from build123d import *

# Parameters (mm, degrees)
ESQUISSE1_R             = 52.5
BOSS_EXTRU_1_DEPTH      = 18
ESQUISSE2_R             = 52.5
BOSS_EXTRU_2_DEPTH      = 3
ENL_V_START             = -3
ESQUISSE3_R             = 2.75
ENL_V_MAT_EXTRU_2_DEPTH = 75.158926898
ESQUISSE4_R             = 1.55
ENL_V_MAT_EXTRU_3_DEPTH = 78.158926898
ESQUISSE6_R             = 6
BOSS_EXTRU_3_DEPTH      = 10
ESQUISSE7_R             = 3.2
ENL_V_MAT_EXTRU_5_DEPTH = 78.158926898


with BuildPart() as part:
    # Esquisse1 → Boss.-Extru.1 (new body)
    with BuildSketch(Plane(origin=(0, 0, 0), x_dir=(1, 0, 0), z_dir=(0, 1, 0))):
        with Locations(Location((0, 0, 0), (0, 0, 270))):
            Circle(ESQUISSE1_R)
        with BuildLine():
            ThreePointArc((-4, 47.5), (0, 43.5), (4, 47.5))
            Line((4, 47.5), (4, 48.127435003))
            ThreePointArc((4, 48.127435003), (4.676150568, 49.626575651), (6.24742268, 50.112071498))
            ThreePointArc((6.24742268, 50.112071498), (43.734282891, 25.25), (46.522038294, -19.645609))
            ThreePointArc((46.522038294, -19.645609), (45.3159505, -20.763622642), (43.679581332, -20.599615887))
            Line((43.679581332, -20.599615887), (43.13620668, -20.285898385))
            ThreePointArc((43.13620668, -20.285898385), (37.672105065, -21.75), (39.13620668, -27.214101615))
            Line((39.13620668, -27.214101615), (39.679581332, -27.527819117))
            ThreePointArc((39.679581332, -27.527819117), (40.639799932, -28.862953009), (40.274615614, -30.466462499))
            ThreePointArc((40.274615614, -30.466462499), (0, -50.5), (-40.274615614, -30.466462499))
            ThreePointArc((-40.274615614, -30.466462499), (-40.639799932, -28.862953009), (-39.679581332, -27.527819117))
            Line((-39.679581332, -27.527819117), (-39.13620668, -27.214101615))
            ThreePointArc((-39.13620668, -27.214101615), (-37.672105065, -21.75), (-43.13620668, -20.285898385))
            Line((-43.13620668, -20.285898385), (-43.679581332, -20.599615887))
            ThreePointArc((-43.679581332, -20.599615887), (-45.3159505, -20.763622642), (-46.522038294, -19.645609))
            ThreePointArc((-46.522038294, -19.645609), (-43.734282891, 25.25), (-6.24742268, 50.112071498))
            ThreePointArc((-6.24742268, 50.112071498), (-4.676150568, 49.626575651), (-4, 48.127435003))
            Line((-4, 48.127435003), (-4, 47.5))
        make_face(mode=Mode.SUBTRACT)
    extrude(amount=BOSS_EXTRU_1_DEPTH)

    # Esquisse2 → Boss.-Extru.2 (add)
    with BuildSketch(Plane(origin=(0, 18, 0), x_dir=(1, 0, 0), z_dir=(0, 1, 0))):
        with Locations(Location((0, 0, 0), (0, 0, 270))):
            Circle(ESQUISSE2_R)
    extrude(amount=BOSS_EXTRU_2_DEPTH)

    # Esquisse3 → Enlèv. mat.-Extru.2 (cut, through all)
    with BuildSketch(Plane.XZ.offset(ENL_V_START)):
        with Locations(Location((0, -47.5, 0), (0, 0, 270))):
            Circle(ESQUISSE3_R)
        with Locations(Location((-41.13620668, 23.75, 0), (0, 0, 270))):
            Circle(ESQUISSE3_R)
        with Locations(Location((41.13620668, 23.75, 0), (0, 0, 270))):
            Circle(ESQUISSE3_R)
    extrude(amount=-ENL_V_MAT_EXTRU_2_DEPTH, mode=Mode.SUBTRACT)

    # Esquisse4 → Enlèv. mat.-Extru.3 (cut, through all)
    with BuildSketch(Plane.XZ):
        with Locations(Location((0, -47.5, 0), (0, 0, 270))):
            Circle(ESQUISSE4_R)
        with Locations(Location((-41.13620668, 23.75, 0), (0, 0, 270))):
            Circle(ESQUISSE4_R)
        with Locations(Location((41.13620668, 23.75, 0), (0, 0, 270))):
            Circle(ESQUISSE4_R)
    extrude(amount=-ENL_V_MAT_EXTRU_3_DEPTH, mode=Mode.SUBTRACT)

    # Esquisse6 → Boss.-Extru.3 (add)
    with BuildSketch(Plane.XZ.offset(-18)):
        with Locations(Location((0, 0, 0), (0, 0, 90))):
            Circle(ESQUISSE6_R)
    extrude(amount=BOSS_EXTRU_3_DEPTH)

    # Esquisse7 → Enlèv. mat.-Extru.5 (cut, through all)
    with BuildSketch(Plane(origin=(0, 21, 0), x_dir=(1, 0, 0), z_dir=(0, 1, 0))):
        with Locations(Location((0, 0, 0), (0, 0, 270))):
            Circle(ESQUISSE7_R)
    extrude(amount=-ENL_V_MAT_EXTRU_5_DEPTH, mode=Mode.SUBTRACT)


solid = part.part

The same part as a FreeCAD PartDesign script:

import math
import FreeCAD as App
import Part
import Sketcher
Q = App.Units.Quantity

doc = App.newDocument("Part")
body = doc.addObject("PartDesign::Body", "Body")

sketch1 = body.newObject("Sketcher::SketchObject", "Sketch")
sketch1.AttachmentSupport = (doc.getObject("XZ_Plane"), [""])
sketch1.MapMode = "FlatFace"
sketch1.addGeometry([
    Part.Circle(App.Vector(0, 0, 0), App.Vector(0, 0, 1), 52.5),
    Part.LineSegment(App.Vector(-4, -48.1, 0), App.Vector(-4, -47.5, 0)),
    Part.ArcOfCircle(Part.Circle(App.Vector(0, -47.5, 0), App.Vector(0, 0, 1), 4), math.radians(0), math.radians(180)),
    Part.LineSegment(App.Vector(4, -47.5, 0), App.Vector(4, -48.1, 0)),
    Part.ArcOfCircle(Part.Circle(App.Vector(6, -48.1, 0), App.Vector(0, 0, 1), 2), math.radians(180), math.radians(277)),
    Part.ArcOfCircle(Part.Circle(App.Vector(0, 0, 0), App.Vector(0, 0, 1), 50.5), math.radians(-83), math.radians(23)),
    Part.ArcOfCircle(Part.Circle(App.Vector(44.7, 18.9, 0), App.Vector(0, 0, 1), 2), math.radians(23), math.radians(120)),
    Part.LineSegment(App.Vector(43.7, 20.6, 0), App.Vector(43.1, 20.3, 0)),
    Part.ArcOfCircle(Part.Circle(App.Vector(41.1, 23.8, 0), App.Vector(0, 0, 1), 4), math.radians(120), math.radians(300)),
    Part.LineSegment(App.Vector(39.1, 27.2, 0), App.Vector(39.7, 27.5, 0)),
    Part.ArcOfCircle(Part.Circle(App.Vector(38.7, 29.3, 0), App.Vector(0, 0, 1), 2), math.radians(-60), math.radians(37)),
    Part.ArcOfCircle(Part.Circle(App.Vector(0, 0, 0), App.Vector(0, 0, 1), 50.5), math.radians(37), math.radians(143)),
    Part.ArcOfCircle(Part.Circle(App.Vector(-38.7, 29.3, 0), App.Vector(0, 0, 1), 2), math.radians(143), math.radians(240)),
    Part.LineSegment(App.Vector(-39.7, 27.5, 0), App.Vector(-39.1, 27.2, 0)),
    Part.ArcOfCircle(Part.Circle(App.Vector(-41.1, 23.8, 0), App.Vector(0, 0, 1), 4), math.radians(-120), math.radians(60)),
    Part.LineSegment(App.Vector(-43.1, 20.3, 0), App.Vector(-43.7, 20.6, 0)),
    Part.ArcOfCircle(Part.Circle(App.Vector(-44.7, 18.9, 0), App.Vector(0, 0, 1), 2), math.radians(60), math.radians(157)),
    Part.ArcOfCircle(Part.Circle(App.Vector(0, 0, 0), App.Vector(0, 0, 1), 50.5), math.radians(157), math.radians(263)),
    Part.ArcOfCircle(Part.Circle(App.Vector(-6, -48.1, 0), App.Vector(0, 0, 1), 2), math.radians(-97), math.radians(0)),
], False)
sketch1.addConstraint([
    Sketcher.Constraint("Tangent", 1, 2, 2, 2),
    Sketcher.Constraint("Tangent", 2, 1, 3, 1),
    Sketcher.Constraint("Tangent", 3, 2, 4, 1),
    Sketcher.Constraint("Tangent", 4, 2, 5, 1),
    Sketcher.Constraint("Tangent", 5, 2, 6, 1),
    Sketcher.Constraint("Tangent", 6, 2, 7, 1),
    Sketcher.Constraint("Tangent", 7, 2, 8, 2),
    Sketcher.Constraint("Tangent", 8, 1, 9, 1),
    Sketcher.Constraint("Tangent", 9, 2, 10, 1),
    Sketcher.Constraint("Tangent", 10, 2, 11, 1),
    Sketcher.Constraint("Tangent", 11, 2, 12, 1),
    Sketcher.Constraint("Tangent", 12, 2, 13, 1),
    Sketcher.Constraint("Tangent", 13, 2, 14, 2),
    Sketcher.Constraint("Tangent", 14, 1, 15, 1),
    Sketcher.Constraint("Tangent", 15, 2, 16, 1),
    Sketcher.Constraint("Tangent", 16, 2, 17, 1),
    Sketcher.Constraint("Tangent", 17, 2, 18, 1),
    Sketcher.Constraint("Tangent", 18, 2, 1, 1),
    Sketcher.Constraint("Vertical", 1),
    Sketcher.Constraint("Vertical", 3),
    Sketcher.Constraint("Coincident", 0, 3, -1, 1),
    Sketcher.Constraint("Coincident", 5, 3, -1, 1),
    Sketcher.Constraint("Coincident", 11, 3, -1, 1),
    Sketcher.Constraint("Coincident", 17, 3, -1, 1),
    Sketcher.Constraint("Equal", 4, 6),
    Sketcher.Constraint("Equal", 2, 8),
    Sketcher.Constraint("Equal", 6, 10),
    Sketcher.Constraint("Equal", 5, 11),
    Sketcher.Constraint("Equal", 10, 12),
    Sketcher.Constraint("Equal", 8, 14),
    Sketcher.Constraint("Equal", 12, 16),
    Sketcher.Constraint("Equal", 11, 17),
    Sketcher.Constraint("Equal", 16, 18),
    Sketcher.Constraint("Symmetric", 8, 3, 14, 3, -2),
    Sketcher.Constraint("PointOnObject", 2, 3, -2),
    Sketcher.Constraint("Parallel", 7, 9),
    Sketcher.Constraint("Parallel", 13, 15),
    Sketcher.Constraint("Horizontal", 10, 3, 12, 3),
    Sketcher.Constraint("Equal", 7, 9),
    Sketcher.Constraint("Diameter", 0, 105.0),
    Sketcher.Constraint("Radius", 2, 4.0),
    Sketcher.Constraint("Radius", 4, 2.0),
    Sketcher.Constraint("Radius", 5, 50.5),
    Sketcher.Constraint("Angle", 7, Q("-150 deg")),
    Sketcher.Constraint("DistanceY", 2, 3, -1, 1, 47.5),
    Sketcher.Constraint("DistanceY", -1, 1, 8, 3, 23.75),
])
pad1 = body.newObject("PartDesign::Pad", "Pad")
pad1.Profile = sketch1
pad1.Length = 18
pad1.Reversed = True

sketch2 = body.newObject("Sketcher::SketchObject", "Sketch001")
sketch2.AttachmentSupport = (doc.getObject("XZ_Plane"), [""])
sketch2.MapMode = "FlatFace"
sketch2.AttachmentOffset = App.Placement(App.Vector(0, 0, -18), App.Rotation())
sketch2.addGeometry(Part.Circle(App.Vector(0, 0, 0), App.Vector(0, 0, 1), 52), False)
sketch2.addConstraint([
    Sketcher.Constraint("Coincident", 0, 3, -1, 1),
    Sketcher.Constraint("Diameter", 0, 105.0),
])
pad2 = body.newObject("PartDesign::Pad", "Pad001")
pad2.Profile = sketch2
pad2.Length = 3
pad2.Reversed = True

sketch3 = body.newObject("Sketcher::SketchObject", "Sketch002")
sketch3.AttachmentSupport = (doc.getObject("XZ_Plane"), [""])
sketch3.MapMode = "FlatFace"
sketch3.AttachmentOffset = App.Placement(App.Vector(0, 0, -3), App.Rotation())
sketch3.addGeometry([
    Part.Circle(App.Vector(0, -47.5, 0), App.Vector(0, 0, 1), 2.8),
    Part.Circle(App.Vector(-41.1, 23.8, 0), App.Vector(0, 0, 1), 2.8),
    Part.Circle(App.Vector(41.1, 23.8, 0), App.Vector(0, 0, 1), 2.8),
], False)
sketch3.addConstraint([
    Sketcher.Constraint("Equal", 0, 1),
    Sketcher.Constraint("Equal", 1, 2),
    Sketcher.Constraint("Symmetric", 1, 3, 2, 3, -2),
    Sketcher.Constraint("PointOnObject", 0, 3, -2),
    Sketcher.Constraint("Diameter", 0, 5.5),
    Sketcher.Constraint("DistanceY", 0, 3, -1, 1, 47.5),
    Sketcher.Constraint("DistanceY", -1, 1, 1, 3, 23.75),
    Sketcher.Constraint("DistanceX", 1, 3, -1, 1, 41.136207),
])
pocket1 = body.newObject("PartDesign::Pocket", "Pocket")
pocket1.Profile = sketch3
pocket1.Type = "ThroughAll"

sketch4 = body.newObject("Sketcher::SketchObject", "Sketch003")
sketch4.AttachmentSupport = (doc.getObject("XZ_Plane"), [""])
sketch4.MapMode = "FlatFace"
sketch4.addGeometry([
    Part.Circle(App.Vector(0, -47.5, 0), App.Vector(0, 0, 1), 1.6),
    Part.Circle(App.Vector(-41.1, 23.8, 0), App.Vector(0, 0, 1), 1.6),
    Part.Circle(App.Vector(41.1, 23.8, 0), App.Vector(0, 0, 1), 1.6),
], False)
sketch4.addConstraint([
    Sketcher.Constraint("Equal", 0, 1),
    Sketcher.Constraint("Equal", 1, 2),
    Sketcher.Constraint("Symmetric", 1, 3, 2, 3, -2),
    Sketcher.Constraint("PointOnObject", 0, 3, -2),
    Sketcher.Constraint("Diameter", 0, 3.1),
    Sketcher.Constraint("DistanceY", 0, 3, -1, 1, 47.5),
    Sketcher.Constraint("DistanceY", -1, 1, 1, 3, 23.75),
    Sketcher.Constraint("DistanceX", 1, 3, -1, 1, 41.136207),
])
pocket2 = body.newObject("PartDesign::Pocket", "Pocket001")
pocket2.Profile = sketch4
pocket2.Type = "ThroughAll"

sketch5 = body.newObject("Sketcher::SketchObject", "Sketch004")
sketch5.AttachmentSupport = (doc.getObject("XZ_Plane"), [""])
sketch5.MapMode = "FlatFace"
sketch5.AttachmentOffset = App.Placement(App.Vector(0, 0, -18), App.Rotation())
sketch5.addGeometry(Part.Circle(App.Vector(0, 0, 0), App.Vector(0, 0, 1), 6), False)
sketch5.addConstraint([
    Sketcher.Constraint("Coincident", 0, 3, -1, 1),
    Sketcher.Constraint("Diameter", 0, 12.0),
])
pad3 = body.newObject("PartDesign::Pad", "Pad002")
pad3.Profile = sketch5
pad3.Length = 10

sketch6 = body.newObject("Sketcher::SketchObject", "Sketch005")
sketch6.AttachmentSupport = (doc.getObject("XZ_Plane"), [""])
sketch6.MapMode = "FlatFace"
sketch6.AttachmentOffset = App.Placement(App.Vector(0, 0, -21), App.Rotation())
sketch6.addGeometry(Part.Circle(App.Vector(0, 0, 0), App.Vector(0, 0, 1), 3.2), False)
sketch6.addConstraint([
    Sketcher.Constraint("Coincident", 0, 3, -1, 1),
    Sketcher.Constraint("Diameter", 0, 6.4),
])
pocket3 = body.newObject("PartDesign::Pocket", "Pocket002")
pocket3.Profile = sketch6
pocket3.Type = "ThroughAll"
pocket3.Reversed = True

doc.recompute()
